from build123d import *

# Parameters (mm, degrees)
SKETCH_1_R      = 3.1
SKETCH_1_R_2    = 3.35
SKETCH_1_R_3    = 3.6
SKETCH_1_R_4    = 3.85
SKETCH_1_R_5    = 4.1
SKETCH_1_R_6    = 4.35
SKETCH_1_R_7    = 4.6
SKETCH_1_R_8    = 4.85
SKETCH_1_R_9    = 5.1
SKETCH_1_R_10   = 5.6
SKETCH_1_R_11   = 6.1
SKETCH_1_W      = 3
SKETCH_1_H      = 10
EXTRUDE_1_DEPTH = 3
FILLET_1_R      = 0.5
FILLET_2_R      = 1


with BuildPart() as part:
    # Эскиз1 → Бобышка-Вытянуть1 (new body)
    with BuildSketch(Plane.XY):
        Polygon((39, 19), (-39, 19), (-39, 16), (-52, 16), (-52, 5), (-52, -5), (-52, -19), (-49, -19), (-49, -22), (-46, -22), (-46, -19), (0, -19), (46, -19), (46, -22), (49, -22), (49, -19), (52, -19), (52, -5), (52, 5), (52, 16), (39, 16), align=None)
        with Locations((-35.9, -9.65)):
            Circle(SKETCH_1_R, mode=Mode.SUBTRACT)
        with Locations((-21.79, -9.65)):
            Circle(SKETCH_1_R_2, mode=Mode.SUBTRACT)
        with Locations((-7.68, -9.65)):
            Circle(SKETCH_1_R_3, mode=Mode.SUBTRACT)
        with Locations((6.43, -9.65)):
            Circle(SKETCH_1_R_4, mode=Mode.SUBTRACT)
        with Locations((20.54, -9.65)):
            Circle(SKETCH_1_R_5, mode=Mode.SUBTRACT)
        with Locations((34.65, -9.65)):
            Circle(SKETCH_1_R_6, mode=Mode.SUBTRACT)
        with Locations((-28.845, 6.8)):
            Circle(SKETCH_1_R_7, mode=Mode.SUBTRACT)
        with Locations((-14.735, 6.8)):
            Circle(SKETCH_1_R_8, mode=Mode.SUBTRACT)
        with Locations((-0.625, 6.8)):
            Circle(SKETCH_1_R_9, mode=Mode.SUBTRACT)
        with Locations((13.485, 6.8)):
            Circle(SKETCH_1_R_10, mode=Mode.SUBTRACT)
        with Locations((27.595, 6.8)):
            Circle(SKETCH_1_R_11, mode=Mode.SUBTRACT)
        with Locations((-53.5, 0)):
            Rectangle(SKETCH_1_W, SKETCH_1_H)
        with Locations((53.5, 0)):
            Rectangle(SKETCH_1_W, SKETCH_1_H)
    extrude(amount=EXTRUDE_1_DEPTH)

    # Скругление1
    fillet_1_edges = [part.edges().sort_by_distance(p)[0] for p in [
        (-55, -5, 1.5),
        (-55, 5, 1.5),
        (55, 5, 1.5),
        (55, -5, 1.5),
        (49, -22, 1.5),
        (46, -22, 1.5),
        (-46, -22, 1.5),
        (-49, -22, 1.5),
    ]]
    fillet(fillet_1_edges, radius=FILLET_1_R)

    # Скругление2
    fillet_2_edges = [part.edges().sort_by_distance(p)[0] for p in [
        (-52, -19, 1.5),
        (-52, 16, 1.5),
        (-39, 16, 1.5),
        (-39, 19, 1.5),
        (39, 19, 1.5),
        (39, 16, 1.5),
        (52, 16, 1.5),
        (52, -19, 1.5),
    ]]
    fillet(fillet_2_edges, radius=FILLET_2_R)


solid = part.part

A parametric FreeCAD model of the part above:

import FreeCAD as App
import Part
import Sketcher

V = App.Vector


def edges_at(feature, points):
    """Names of the edges that pass closest to the given points."""
    edges = feature.Shape.Edges
    near = lambda p: min(range(len(edges)), key=lambda i: edges[i].distToShape(Part.Vertex(*p))[0])
    return sorted({f"Edge{near(p) + 1}" for p in points})


def add_polygon(sketch, points):
    """Adds a closed chain of lines whose ends are joined by coincident constraints."""
    first, n = sketch.GeometryCount, len(points)
    for a, b in zip(points, points[1:] + points[:1]):
        sketch.addGeometry(Part.LineSegment(App.Vector(*a, 0), App.Vector(*b, 0)), False)
    for i in range(n):
        sketch.addConstraint(Sketcher.Constraint("Coincident", first + i, 2, first + (i + 1) % n, 1))

doc = App.newDocument("Part")
body = doc.addObject("PartDesign::Body", "Body")

# Sketch on XY plane
sketch1 = doc.addObject("Sketcher::SketchObject", "Sketch")
body.addObject(sketch1)
sketch1.AttachmentSupport = (doc.XY_Plane, [""])
sketch1.MapMode = "FlatFace"
add_polygon(sketch1, [(39, 19), (-39, 19), (-39, 16), (-52, 16), (-52, 5), (-55, 5), (-55, -5), (-52, -5), (-52, -19), (-49, -19), (-49, -22), (-46, -22), (-46, -19), (46, -19), (46, -22), (49, -22), (49, -19), (52, -19), (52, -5), (55, -5), (55, 5), (52, 5), (52, 16), (39, 16)])  # lines 0-23
sketch1.addGeometry(Part.Circle(V(-35.9, -9.7, 0), V(0, 0, 1), 3.1), False)  # 24
sketch1.addGeometry(Part.Circle(V(-21.8, -9.7, 0), V(0, 0, 1), 3.4), False)  # 25
sketch1.addGeometry(Part.Circle(V(-7.7, -9.7, 0), V(0, 0, 1), 3.6), False)  # 26
sketch1.addGeometry(Part.Circle(V(6.4, -9.7, 0), V(0, 0, 1), 3.9), False)  # 27
sketch1.addGeometry(Part.Circle(V(20.5, -9.7, 0), V(0, 0, 1), 4.1), False)  # 28
sketch1.addGeometry(Part.Circle(V(34.6, -9.7, 0), V(0, 0, 1), 4.3), False)  # 29
sketch1.addGeometry(Part.Circle(V(-28.8, 6.8, 0), V(0, 0, 1), 4.6), False)  # 30
sketch1.addGeometry(Part.Circle(V(-14.7, 6.8, 0), V(0, 0, 1), 4.8), False)  # 31
sketch1.addGeometry(Part.Circle(V(-0.6, 6.8, 0), V(0, 0, 1), 5.1), False)  # 32
sketch1.addGeometry(Part.Circle(V(13.5, 6.8, 0), V(0, 0, 1), 5.6), False)  # 33
sketch1.addGeometry(Part.Circle(V(27.6, 6.8, 0), V(0, 0, 1), 6.1), False)  # 34
sketch1.addConstraint([
    Sketcher.Constraint("Horizontal", 0),
    Sketcher.Constraint("Vertical", 1),
    Sketcher.Constraint("Horizontal", 2),
    Sketcher.Constraint("Vertical", 3),
    Sketcher.Constraint("Horizontal", 4),
    Sketcher.Constraint("Vertical", 5),
    Sketcher.Constraint("Horizontal", 6),
    Sketcher.Constraint("Vertical", 7),
    Sketcher.Constraint("Horizontal", 8),
    Sketcher.Constraint("Vertical", 9),
    Sketcher.Constraint("Horizontal", 10),
    Sketcher.Constraint("Vertical", 11),
    Sketcher.Constraint("Horizontal", 12),
    Sketcher.Constraint("Vertical", 13),
    Sketcher.Constraint("Horizontal", 14),
    Sketcher.Constraint("Vertical", 15),
    Sketcher.Constraint("Horizontal", 16),
    Sketcher.Constraint("Vertical", 17),
    Sketcher.Constraint("Horizontal", 18),
    Sketcher.Constraint("Vertical", 19),
    Sketcher.Constraint("Horizontal", 20),
    Sketcher.Constraint("Vertical", 21),
    Sketcher.Constraint("Horizontal", 22),
    Sketcher.Constraint("Vertical", 23),
    Sketcher.Constraint("Symmetric", 3, 2, 17, 2, -1, 1),
    Sketcher.Constraint("Symmetric", 5, 2, 19, 2, -1, 1),
    Sketcher.Constraint("Symmetric", 10, 2, 13, 2, -2),
    Sketcher.Constraint("Symmetric", 8, 2, 15, 2, -2),
    Sketcher.Constraint("Symmetric", 6, 2, 17, 2, -2),
    Sketcher.Constraint("Symmetric", 2, 2, 21, 2, -2),
    Sketcher.Constraint("Horizontal", 24, 3, 25, 3),
    Sketcher.Constraint("Horizontal", 25, 3, 26, 3),
    Sketcher.Constraint("Horizontal", 26, 3, 27, 3),
    Sketcher.Constraint("Horizontal", 27, 3, 28, 3),
    Sketcher.Constraint("Horizontal", 28, 3, 29, 3),
    Sketcher.Constraint("Horizontal", 30, 3, 31, 3),
    Sketcher.Constraint("Horizontal", 31, 3, 32, 3),
    Sketcher.Constraint("Horizontal", 32, 3, 33, 3),
    Sketcher.Constraint("Horizontal", 33, 3, 34, 3),
    Sketcher.Constraint("Horizontal", 8, 2, 11, 2),
    Sketcher.Constraint("Equal", 6, 8),
    Sketcher.Constraint("Equal", 8, 10),
    Sketcher.Constraint("Equal", 2, 22),
    Sketcher.Constraint("Equal", 20, 1),
    Sketcher.Constraint("Equal", 1, 9),
    Sketcher.Constraint("Diameter", 24, 6.2),
    Sketcher.Constraint("Diameter", 25, 6.7),
    Sketcher.Constraint("Diameter", 26, 7.2),
    Sketcher.Constraint("Diameter", 27, 7.7),
    Sketcher.Constraint("Diameter", 28, 8.2),
    Sketcher.Constraint("Diameter", 29, 8.7),
    Sketcher.Constraint("Diameter", 30, 9.2),
    Sketcher.Constraint("Diameter", 31, 9.7),
    Sketcher.Constraint("Diameter", 32, 10.2),
    Sketcher.Constraint("Diameter", 33, 11.2),
    Sketcher.Constraint("Diameter", 34, 12.2),
    Sketcher.Constraint("DistanceX", 0, 2, 0, 1, 78.0),
    Sketcher.Constraint("DistanceX", 2, 2, 2, 1, 13.0),
    Sketcher.Constraint("DistanceX", 4, 2, 4, 1, 3.0),
    Sketcher.Constraint("DistanceY", 3, 2, 3, 1, 11.0),
    Sketcher.Constraint("DistanceY", 5, 2, 5, 1, 10.0),
    Sketcher.Constraint("DistanceY", 7, 2, 7, 1, 14.0),
    Sketcher.Constraint("DistanceX", 24, 3, -1, 1, 35.9),
    Sketcher.Constraint("DistanceY", -1, 1, 30, 3, 6.8),
    Sketcher.Constraint("DistanceY", 24, 3, -1, 1, 9.65),
    Sketcher.Constraint("DistanceX", 25, 3, -1, 1, 21.79),
    Sketcher.Constraint("DistanceX", 26, 3, -1, 1, 7.68),
    Sketcher.Constraint("DistanceX", -1, 1, 27, 3, 6.43),
    Sketcher.Constraint("DistanceX", -1, 1, 28, 3, 20.54),
    Sketcher.Constraint("DistanceX", -1, 1, 29, 3, 34.65),
    Sketcher.Constraint("DistanceX", 30, 3, 31, 3, 14.11),
    Sketcher.Constraint("DistanceX", 31, 3, 32, 3, 14.11),
    Sketcher.Constraint("DistanceX", 32, 3, 33, 3, 14.11),
    Sketcher.Constraint("DistanceX", 33, 3, 34, 3, 14.11),
    Sketcher.Constraint("DistanceX", 30, 3, -1, 1, 28.845),
])
pad1 = doc.addObject("PartDesign::Pad", "Pad")
body.addObject(pad1)
pad1.Profile = sketch1
pad1.Length = 3
doc.recompute()

fillet = doc.addObject("PartDesign::Fillet", "Fillet")
body.addObject(fillet)
fillet.Base = (pad1, edges_at(pad1, [
    (-55, -5, 1.5),
    (-55, 5, 1.5),
    (55, 5, 1.5),
    (55, -5, 1.5),
    (49, -22, 1.5),
    (46, -22, 1.5),
    (-46, -22, 1.5),
    (-49, -22, 1.5),
]))
fillet.Radius = 0.5
doc.recompute()

fillet2 = doc.addObject("PartDesign::Fillet", "Fillet001")
body.addObject(fillet2)
fillet2.Base = (fillet, edges_at(fillet, [
    (-52, -19, 1.5),
    (-52, 16, 1.5),
    (-39, 16, 1.5),
    (-39, 19, 1.5),
    (39, 19, 1.5),
    (39, 16, 1.5),
    (52, 16, 1.5),
    (52, -19, 1.5),
]))
fillet2.Radius = 1

doc.recompute()
